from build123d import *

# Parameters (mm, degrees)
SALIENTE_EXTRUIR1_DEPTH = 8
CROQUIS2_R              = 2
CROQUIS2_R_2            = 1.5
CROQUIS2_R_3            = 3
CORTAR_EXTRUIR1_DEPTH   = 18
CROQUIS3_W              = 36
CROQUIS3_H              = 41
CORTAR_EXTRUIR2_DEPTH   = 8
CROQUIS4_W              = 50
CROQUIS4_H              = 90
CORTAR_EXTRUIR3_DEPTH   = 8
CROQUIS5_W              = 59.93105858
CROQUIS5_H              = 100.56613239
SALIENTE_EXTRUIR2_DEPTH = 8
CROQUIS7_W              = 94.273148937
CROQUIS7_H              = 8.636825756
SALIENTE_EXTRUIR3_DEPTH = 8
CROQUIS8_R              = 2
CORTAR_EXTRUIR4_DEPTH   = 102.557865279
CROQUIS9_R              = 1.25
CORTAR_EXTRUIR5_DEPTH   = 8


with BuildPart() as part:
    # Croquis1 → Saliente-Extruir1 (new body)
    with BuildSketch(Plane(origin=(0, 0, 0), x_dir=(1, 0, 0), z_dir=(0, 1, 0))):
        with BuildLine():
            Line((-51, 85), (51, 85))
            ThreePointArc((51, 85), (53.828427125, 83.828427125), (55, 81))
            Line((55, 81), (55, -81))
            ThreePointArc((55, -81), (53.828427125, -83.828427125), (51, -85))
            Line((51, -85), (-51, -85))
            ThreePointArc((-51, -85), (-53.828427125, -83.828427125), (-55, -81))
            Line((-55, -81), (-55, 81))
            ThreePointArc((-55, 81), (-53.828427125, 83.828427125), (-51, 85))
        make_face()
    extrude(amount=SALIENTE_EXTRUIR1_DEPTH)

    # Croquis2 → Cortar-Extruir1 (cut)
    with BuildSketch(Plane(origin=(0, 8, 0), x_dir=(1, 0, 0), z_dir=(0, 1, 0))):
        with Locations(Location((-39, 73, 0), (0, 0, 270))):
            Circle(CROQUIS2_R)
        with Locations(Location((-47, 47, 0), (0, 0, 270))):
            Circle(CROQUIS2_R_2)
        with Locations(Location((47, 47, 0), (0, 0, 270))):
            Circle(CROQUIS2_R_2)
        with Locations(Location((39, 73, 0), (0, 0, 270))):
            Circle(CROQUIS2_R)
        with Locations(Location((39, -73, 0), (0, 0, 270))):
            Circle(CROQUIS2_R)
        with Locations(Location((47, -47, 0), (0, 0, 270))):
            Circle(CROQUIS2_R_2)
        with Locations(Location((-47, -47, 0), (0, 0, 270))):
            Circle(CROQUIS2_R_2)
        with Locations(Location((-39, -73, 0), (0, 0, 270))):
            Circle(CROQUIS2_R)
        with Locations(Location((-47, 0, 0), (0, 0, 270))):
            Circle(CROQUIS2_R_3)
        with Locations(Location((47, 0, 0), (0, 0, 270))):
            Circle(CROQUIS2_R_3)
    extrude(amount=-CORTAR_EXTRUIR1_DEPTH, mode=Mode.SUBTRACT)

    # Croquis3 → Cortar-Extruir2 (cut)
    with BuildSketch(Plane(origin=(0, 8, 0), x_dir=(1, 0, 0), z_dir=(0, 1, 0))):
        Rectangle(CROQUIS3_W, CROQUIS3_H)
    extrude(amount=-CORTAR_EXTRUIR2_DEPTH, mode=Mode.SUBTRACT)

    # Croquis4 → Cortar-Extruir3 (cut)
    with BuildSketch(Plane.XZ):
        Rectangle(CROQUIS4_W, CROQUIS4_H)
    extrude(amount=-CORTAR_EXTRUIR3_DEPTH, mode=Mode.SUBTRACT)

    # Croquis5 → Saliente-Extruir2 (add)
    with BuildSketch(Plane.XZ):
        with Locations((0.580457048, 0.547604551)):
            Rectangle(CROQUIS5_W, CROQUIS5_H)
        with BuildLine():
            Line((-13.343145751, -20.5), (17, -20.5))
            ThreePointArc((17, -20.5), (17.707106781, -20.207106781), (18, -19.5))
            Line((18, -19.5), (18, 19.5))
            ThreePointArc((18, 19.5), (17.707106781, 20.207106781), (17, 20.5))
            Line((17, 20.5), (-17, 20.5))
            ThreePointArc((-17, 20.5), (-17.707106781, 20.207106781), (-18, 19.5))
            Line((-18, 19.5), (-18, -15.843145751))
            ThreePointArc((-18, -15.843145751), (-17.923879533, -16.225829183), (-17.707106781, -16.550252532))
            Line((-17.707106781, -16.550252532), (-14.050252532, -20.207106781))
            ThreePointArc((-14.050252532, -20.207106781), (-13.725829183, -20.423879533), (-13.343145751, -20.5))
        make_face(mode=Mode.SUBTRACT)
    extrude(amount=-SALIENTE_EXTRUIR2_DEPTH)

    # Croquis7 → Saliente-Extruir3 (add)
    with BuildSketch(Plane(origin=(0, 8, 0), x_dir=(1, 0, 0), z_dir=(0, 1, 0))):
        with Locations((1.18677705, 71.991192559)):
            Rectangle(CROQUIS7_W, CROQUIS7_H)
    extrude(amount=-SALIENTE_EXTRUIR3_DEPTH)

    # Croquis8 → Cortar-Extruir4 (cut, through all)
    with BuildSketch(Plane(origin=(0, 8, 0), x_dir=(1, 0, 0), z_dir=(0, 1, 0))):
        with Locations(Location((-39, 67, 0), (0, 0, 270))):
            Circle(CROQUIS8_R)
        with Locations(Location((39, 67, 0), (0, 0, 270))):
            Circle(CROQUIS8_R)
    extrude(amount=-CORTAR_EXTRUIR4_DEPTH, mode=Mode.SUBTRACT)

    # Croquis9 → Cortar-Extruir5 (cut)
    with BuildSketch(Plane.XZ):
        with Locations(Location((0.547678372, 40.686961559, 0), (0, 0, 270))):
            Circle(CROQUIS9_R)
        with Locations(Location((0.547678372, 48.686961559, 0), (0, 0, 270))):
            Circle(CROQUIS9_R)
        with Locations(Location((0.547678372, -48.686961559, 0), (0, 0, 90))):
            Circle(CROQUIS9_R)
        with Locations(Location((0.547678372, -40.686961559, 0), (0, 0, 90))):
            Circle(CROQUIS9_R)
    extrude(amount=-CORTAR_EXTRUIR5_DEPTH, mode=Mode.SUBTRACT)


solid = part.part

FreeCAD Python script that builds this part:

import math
import FreeCAD as App
import Part
import Sketcher
Q = App.Units.Quantity


def add_polygon(sketch, points):
    """Adds a closed chain of lines whose ends are joined by coincident constraints."""
    first, n = sketch.GeometryCount, len(points)
    for a, b in zip(points, points[1:] + points[:1]):
        sketch.addGeometry(Part.LineSegment(App.Vector(*a, 0), App.Vector(*b, 0)), False)
    for i in range(n):
        sketch.addConstraint(Sketcher.Constraint("Coincident", first + i, 2, first + (i + 1) % n, 1))

doc = App.newDocument("Part")
params = doc.addObject("Spreadsheet::Sheet", "Params")
for row, (alias, value) in enumerate([
    ("sketch1_radius", "4 mm"),
    ("sketch1_width", "102 mm"),
    ("sketch1_height", "162 mm"),
    ("pad1_length", "8 mm"),
    ("sketch2_diameter", "4 mm"),
    ("sketch2_diameter2", "3 mm"),
    ("sketch2_diameter3", "6 mm"),
    ("pocket1_length", "18 mm"),
    ("sketch3_width", "36 mm"),
    ("sketch3_height", "41 mm"),
    ("pocket2_length", "8 mm"),
    ("sketch4_width", "50 mm"),
    ("sketch4_height", "90 mm"),
    ("pocket3_length", "8 mm"),
    ("sketch5_radius", "1 mm"),
    ("sketch5_width", "34 mm"),
    ("sketch5_height", "39 mm"),
    ("pad2_length", "8 mm"),
    ("pad3_length", "8 mm"),
    ("sketch7_diameter", "4 mm"),
    ("sketch8_diameter", "2.5 mm"),
    ("pocket5_length", "8 mm"),
], start=1):
    params.set(f"A{row}", alias)
    params.set(f"B{row}", "=" + value)
    params.setAlias(f"B{row}", alias)

body = doc.addObject("PartDesign::Body", "Body")

sketch1 = doc.addObject("Sketcher::SketchObject", "Sketch")
body.addObject(sketch1)
sketch1.AttachmentSupport = (doc.XZ_Plane, [""])
sketch1.MapMode = "FlatFace"
sketch1.addGeometry(Part.LineSegment(App.Vector(51, -85, 0), App.Vector(-51, -85, 0)), False)
sketch1.addGeometry(Part.ArcOfCircle(Part.Circle(App.Vector(-51, -81, 0), App.Vector(0, 0, 1), 4), math.radians(180), math.radians(270)), False)
sketch1.addGeometry(Part.LineSegment(App.Vector(-55, -81, 0), App.Vector(-55, 81, 0)), False)
sketch1.addGeometry(Part.ArcOfCircle(Part.Circle(App.Vector(-51, 81, 0), App.Vector(0, 0, 1), 4), math.radians(90), math.radians(180)), False)
sketch1.addGeometry(Part.LineSegment(App.Vector(-51, 85, 0), App.Vector(51, 85, 0)), False)
sketch1.addGeometry(Part.ArcOfCircle(Part.Circle(App.Vector(51, 81, 0), App.Vector(0, 0, 1), 4), math.radians(0), math.radians(90)), False)
sketch1.addGeometry(Part.LineSegment(App.Vector(55, 81, 0), App.Vector(55, -81, 0)), False)
sketch1.addGeometry(Part.ArcOfCircle(Part.Circle(App.Vector(51, -81, 0), App.Vector(0, 0, 1), 4), math.radians(-90), math.radians(0)), False)
sketch1.addConstraint(Sketcher.Constraint("Tangent", 0, 2, 1, 2))
sketch1.addConstraint(Sketcher.Constraint("Tangent", 1, 1, 2, 1))
sketch1.addConstraint(Sketcher.Constraint("Tangent", 2, 2, 3, 2))
sketch1.addConstraint(Sketcher.Constraint("Tangent", 3, 1, 4, 1))
sketch1.addConstraint(Sketcher.Constraint("Tangent", 4, 2, 5, 2))
sketch1.addConstraint(Sketcher.Constraint("Tangent", 5, 1, 6, 1))
sketch1.addConstraint(Sketcher.Constraint("Tangent", 6, 2, 7, 2))
sketch1.addConstraint(Sketcher.Constraint("Tangent", 7, 1, 0, 1))
sketch1.addConstraint(Sketcher.Constraint("Horizontal", 0))
sketch1.addConstraint(Sketcher.Constraint("Vertical", 2))
sketch1.addConstraint(Sketcher.Constraint("Horizontal", 4))
sketch1.addConstraint(Sketcher.Constraint("Vertical", 6))
sketch1.addConstraint(Sketcher.Constraint("Equal", 1, 3))
sketch1.addConstraint(Sketcher.Constraint("Equal", 3, 5))
sketch1.addConstraint(Sketcher.Constraint("Equal", 5, 7))
sketch1.addConstraint(Sketcher.Constraint("Symmetric", 1, 3, 5, 3, -1, 1))
sketch1.addConstraint(Sketcher.Constraint("Radius", 1, 4.0))
sketch1.addConstraint(Sketcher.Constraint("DistanceX", 0, 2, 0, 1, 102.0))
sketch1.addConstraint(Sketcher.Constraint("DistanceY", 2, 1, 2, 2, 162.0))
sketch1.setExpression("Constraints[16]", "Params.sketch1_radius")
sketch1.setExpression("Constraints[17]", "Params.sketch1_width")
sketch1.setExpression("Constraints[18]", "Params.sketch1_height")
pad1 = doc.addObject("PartDesign::Pad", "Pad")
body.addObject(pad1)
pad1.Profile = sketch1
pad1.setExpression("Length", "Params.pad1_length")
pad1.Reversed = True

sketch2 = doc.addObject("Sketcher::SketchObject", "Sketch001")
body.addObject(sketch2)
sketch2.AttachmentSupport = (doc.XZ_Plane, [""])
sketch2.MapMode = "FlatFace"
sketch2.AttachmentOffset = App.Placement(App.Vector(0, 0, -8), App.Rotation())
sketch2.addGeometry(Part.Circle(App.Vector(-39, -73, 0), App.Vector(0, 0, 1), 2), False)
sketch2.addGeometry(Part.Circle(App.Vector(-47, -47, 0), App.Vector(0, 0, 1), 1.5), False)
sketch2.addGeometry(Part.Circle(App.Vector(47, -47, 0), App.Vector(0, 0, 1), 1.5), False)
sketch2.addGeometry(Part.Circle(App.Vector(39, -73, 0), App.Vector(0, 0, 1), 2), False)
sketch2.addGeometry(Part.Circle(App.Vector(39, 73, 0), App.Vector(0, 0, 1), 2), False)
sketch2.addGeometry(Part.Circle(App.Vector(47, 47, 0), App.Vector(0, 0, 1), 1.5), False)
sketch2.addGeometry(Part.Circle(App.Vector(-47, 47, 0), App.Vector(0, 0, 1), 1.5), False)
sketch2.addGeometry(Part.Circle(App.Vector(-39, 73, 0), App.Vector(0, 0, 1), 2), False)
sketch2.addGeometry(Part.Circle(App.Vector(-47, 0, 0), App.Vector(0, 0, 1), 3), False)
sketch2.addGeometry(Part.Circle(App.Vector(47, 0, 0), App.Vector(0, 0, 1), 3), False)
sketch2.addConstraint(Sketcher.Constraint("Equal", 1, 2))
sketch2.addConstraint(Sketcher.Constraint("Equal", 0, 3))
sketch2.addConstraint(Sketcher.Constraint("Equal", 3, 4))
sketch2.addConstraint(Sketcher.Constraint("Equal", 2, 5))
sketch2.addConstraint(Sketcher.Constraint("Equal", 5, 6))
sketch2.addConstraint(Sketcher.Constraint("Equal", 4, 7))
sketch2.addConstraint(Sketcher.Constraint("Equal", 8, 9))
sketch2.addConstraint(Sketcher.Constraint("Symmetric", 0, 3, 4, 3, -1, 1))
sketch2.addConstraint(Sketcher.Constraint("Symmetric", 1, 3, 5, 3, -1, 1))
sketch2.addConstraint(Sketcher.Constraint("Symmetric", 2, 3, 6, 3, -1, 1))
sketch2.addConstraint(Sketcher.Constraint("Symmetric", 3, 3, 7, 3, -1, 1))
sketch2.addConstraint(Sketcher.Constraint("Symmetric", 8, 3, 9, 3, -1, 1))
sketch2.addConstraint(Sketcher.Constraint("Symmetric", 1, 3, 2, 3, -2))
sketch2.addConstraint(Sketcher.Constraint("Symmetric", 0, 3, 3, 3, -2))
sketch2.addConstraint(Sketcher.Constraint("PointOnObject", 8, 3, -1))
sketch2.addConstraint(Sketcher.Constraint("Vertical", 6, 3, 8, 3))
sketch2.addConstraint(Sketcher.Constraint("Diameter", 0, 4.0))
sketch2.addConstraint(Sketcher.Constraint("Diameter", 1, 3.0))
sketch2.addConstraint(Sketcher.Constraint("Diameter", 8, 6.0))
sketch2.addConstraint(Sketcher.Constraint("DistanceX", 0, 3, -1, 1, 39.0))
sketch2.addConstraint(Sketcher.Constraint("DistanceY", 0, 3, -1, 1, 73.0))
sketch2.addConstraint(Sketcher.Constraint("DistanceX", 1, 3, -1, 1, 47.0))
sketch2.addConstraint(Sketcher.Constraint("DistanceY", 1, 3, -1, 1, 47.0))
sketch2.setExpression("Constraints[16]", "Params.sketch2_diameter")
sketch2.setExpression("Constraints[17]", "Params.sketch2_diameter2")
sketch2.setExpression("Constraints[18]", "Params.sketch2_diameter3")
pocket1 = doc.addObject("PartDesign::Pocket", "Pocket")
body.addObject(pocket1)
pocket1.Profile = sketch2
pocket1.setExpression("Length", "Params.pocket1_length")
pocket1.Reversed = True

sketch3 = doc.addObject("Sketcher::SketchObject", "Sketch002")
body.addObject(sketch3)
sketch3.AttachmentSupport = (doc.XZ_Plane, [""])
sketch3.MapMode = "FlatFace"
sketch3.AttachmentOffset = App.Placement(App.Vector(0, 0, -8), App.Rotation())
add_polygon(sketch3, [(-18, -20.5), (-18, 20.5), (18, 20.5), (18, -20.5)])
sketch3.addConstraint(Sketcher.Constraint("Vertical", 0))
sketch3.addConstraint(Sketcher.Constraint("Horizontal", 1))
sketch3.addConstraint(Sketcher.Constraint("Vertical", 2))
sketch3.addConstraint(Sketcher.Constraint("Horizontal", 3))
sketch3.addConstraint(Sketcher.Constraint("Symmetric", 0, 2, 2, 2, -1, 1))
sketch3.addConstraint(Sketcher.Constraint("DistanceX", 1, 1, 1, 2, 36.0))
sketch3.addConstraint(Sketcher.Constraint("DistanceY", 0, 1, 0, 2, 41.0))
sketch3.setExpression("Constraints[9]", "Params.sketch3_width")
sketch3.setExpression("Constraints[10]", "Params.sketch3_height")
pocket2 = doc.addObject("PartDesign::Pocket", "Pocket001")
body.addObject(pocket2)
pocket2.Profile = sketch3
pocket2.setExpression("Length", "Params.pocket2_length")
pocket2.Reversed = True

sketch4 = doc.addObject("Sketcher::SketchObject", "Sketch003")
body.addObject(sketch4)
sketch4.AttachmentSupport = (doc.XZ_Plane, [""])
sketch4.MapMode = "FlatFace"
add_polygon(sketch4, [(-25, 45), (-25, -45), (25, -45), (25, 45)])
sketch4.addConstraint(Sketcher.Constraint("Vertical", 0))
sketch4.addConstraint(Sketcher.Constraint("Horizontal", 1))
sketch4.addConstraint(Sketcher.Constraint("Vertical", 2))
sketch4.addConstraint(Sketcher.Constraint("Horizontal", 3))
sketch4.addConstraint(Sketcher.Constraint("Symmetric", 0, 2, 2, 2, -1, 1))
sketch4.addConstraint(Sketcher.Constraint("DistanceX", 1, 1, 1, 2, 50.0))
sketch4.addConstraint(Sketcher.Constraint("DistanceY", 0, 2, 0, 1, 90.0))
sketch4.setExpression("Constraints[9]", "Params.sketch4_width")
sketch4.setExpression("Constraints[10]", "Params.sketch4_height")
pocket3 = doc.addObject("PartDesign::Pocket", "Pocket002")
body.addObject(pocket3)
pocket3.Profile = sketch4
pocket3.setExpression("Length", "Params.pocket3_length")

sketch5 = doc.addObject("Sketcher::SketchObject", "Sketch004")
body.addObject(sketch5)
sketch5.AttachmentSupport = (doc.XZ_Plane, [""])
sketch5.MapMode = "FlatFace"
add_polygon(sketch5, [(-29.385072, 50.830671), (-29.385072, -49.735462), (30.545986, -49.735462), (30.545986, 50.830671)])
sketch5.addGeometry(Part.LineSegment(App.Vector(17, -20.5, 0), App.Vector(-13.343146, -20.5, 0)), False)
sketch5.addGeometry(Part.ArcOfCircle(Part.Circle(App.Vector(-13.343146, -19.5, 0), App.Vector(0, 0, 1), 1), math.radians(-135), math.radians(-90)), False)
sketch5.addGeometry(Part.LineSegment(App.Vector(-14.050253, -20.207107, 0), App.Vector(-17.707107, -16.550253, 0)), False)
sketch5.addGeometry(Part.ArcOfCircle(Part.Circle(App.Vector(-17, -15.843146, 0), App.Vector(0, 0, 1), 1), math.radians(180), math.radians(225)), False)
sketch5.addGeometry(Part.LineSegment(App.Vector(-18, -15.843146, 0), App.Vector(-18, 19.5, 0)), False)
sketch5.addGeometry(Part.ArcOfCircle(Part.Circle(App.Vector(-17, 19.5, 0), App.Vector(0, 0, 1), 1), math.radians(90), math.radians(180)), False)
sketch5.addGeometry(Part.LineSegment(App.Vector(-17, 20.5, 0), App.Vector(17, 20.5, 0)), False)
sketch5.addGeometry(Part.ArcOfCircle(Part.Circle(App.Vector(17, 19.5, 0), App.Vector(0, 0, 1), 1), math.radians(0), math.radians(90)), False)
sketch5.addGeometry(Part.LineSegment(App.Vector(18, 19.5, 0), App.Vector(18, -19.5, 0)), False)
sketch5.addGeometry(Part.ArcOfCircle(Part.Circle(App.Vector(17, -19.5, 0), App.Vector(0, 0, 1), 1), math.radians(-90), math.radians(0)), False)
sketch5.addConstraint(Sketcher.Constraint("Tangent", 4, 2, 5, 2))
sketch5.addConstraint(Sketcher.Constraint("Tangent", 5, 1, 6, 1))
sketch5.addConstraint(Sketcher.Constraint("Tangent", 6, 2, 7, 2))
sketch5.addConstraint(Sketcher.Constraint("Tangent", 7, 1, 8, 1))
sketch5.addConstraint(Sketcher.Constraint("Tangent", 8, 2, 9, 2))
sketch5.addConstraint(Sketcher.Constraint("Tangent", 9, 1, 10, 1))
sketch5.addConstraint(Sketcher.Constraint("Tangent", 10, 2, 11, 2))
sketch5.addConstraint(Sketcher.Constraint("Tangent", 11, 1, 12, 1))
sketch5.addConstraint(Sketcher.Constraint("Tangent", 12, 2, 13, 2))
sketch5.addConstraint(Sketcher.Constraint("Tangent", 13, 1, 4, 1))
sketch5.addConstraint(Sketcher.Constraint("Vertical", 0))
sketch5.addConstraint(Sketcher.Constraint("Horizontal", 1))
sketch5.addConstraint(Sketcher.Constraint("Vertical", 2))
sketch5.addConstraint(Sketcher.Constraint("Horizontal", 3))
sketch5.addConstraint(Sketcher.Constraint("Horizontal", 4))
sketch5.addConstraint(Sketcher.Constraint("Vertical", 8))
sketch5.addConstraint(Sketcher.Constraint("Horizontal", 10))
sketch5.addConstraint(Sketcher.Constraint("Vertical", 12))
sketch5.addConstraint(Sketcher.Constraint("Equal", 5, 7))
sketch5.addConstraint(Sketcher.Constraint("Equal", 7, 9))
sketch5.addConstraint(Sketcher.Constraint("Equal", 9, 11))
sketch5.addConstraint(Sketcher.Constraint("Equal", 11, 13))
sketch5.addConstraint(Sketcher.Constraint("Symmetric", 9, 3, 13, 3, -1, 1))
sketch5.addConstraint(Sketcher.Constraint("Radius", 5, 1.0))
sketch5.addConstraint(Sketcher.Constraint("DistanceX", 10, 1, 10, 2, 34.0))
sketch5.addConstraint(Sketcher.Constraint("DistanceY", 12, 2, 12, 1, 39.0))
sketch5.addConstraint(Sketcher.Constraint("Angle", 6, Q("135 deg")))
sketch5.addConstraint(Sketcher.Constraint("DistanceX", 1, 1, 1, 2, 59.931059))
sketch5.addConstraint(Sketcher.Constraint("DistanceX", 4, 2, 4, 1, 30.343146))
sketch5.addConstraint(Sketcher.Constraint("DistanceY", 0, 2, 0, 1, 100.566132))
sketch5.addConstraint(Sketcher.Constraint("DistanceY", 0, 2, -1, 1, 49.735462))
sketch5.addConstraint(Sketcher.Constraint("DistanceX", 0, 2, 5, 1, 15.33482))
sketch5.setExpression("Constraints[27]", "Params.sketch5_radius")
sketch5.setExpression("Constraints[28]", "Params.sketch5_width")
sketch5.setExpression("Constraints[29]", "Params.sketch5_height")
pad2 = doc.addObject("PartDesign::Pad", "Pad001")
body.addObject(pad2)
pad2.Profile = sketch5
pad2.setExpression("Length", "Params.pad2_length")
pad2.Reversed = True

sketch6 = doc.addObject("Sketcher::SketchObject", "Sketch005")
body.addObject(sketch6)
sketch6.AttachmentSupport = (doc.XZ_Plane, [""])
sketch6.MapMode = "FlatFace"
sketch6.AttachmentOffset = App.Placement(App.Vector(0, 0, -8), App.Rotation())
add_polygon(sketch6, [(-45.949797, -76.309605), (-45.949797, -67.67278), (48.323352, -67.67278), (48.323352, -76.309605)])
sketch6.addConstraint(Sketcher.Constraint("Vertical", 0))
sketch6.addConstraint(Sketcher.Constraint("Horizontal", 1))
sketch6.addConstraint(Sketcher.Constraint("Vertical", 2))
sketch6.addConstraint(Sketcher.Constraint("Horizontal", 3))
sketch6.addConstraint(Sketcher.Constraint("DistanceX", 1, 1, 1, 2, 94.273149))
sketch6.addConstraint(Sketcher.Constraint("DistanceY", 0, 1, 0, 2, 8.636826))
sketch6.addConstraint(Sketcher.Constraint("DistanceY", 0, 2, -1, 1, 67.67278))
sketch6.addConstraint(Sketcher.Constraint("DistanceX", -1, 1, 1, 2, 48.323352))
pad3 = doc.addObject("PartDesign::Pad", "Pad002")
body.addObject(pad3)
pad3.Profile = sketch6
pad3.setExpression("Length", "Params.pad3_length")

sketch7 = doc.addObject("Sketcher::SketchObject", "Sketch006")
body.addObject(sketch7)
sketch7.AttachmentSupport = (doc.XZ_Plane, [""])
sketch7.MapMode = "FlatFace"
sketch7.AttachmentOffset = App.Placement(App.Vector(0, 0, -8), App.Rotation())
sketch7.addGeometry(Part.Circle(App.Vector(-39, -67, 0), App.Vector(0, 0, 1), 2), False)
sketch7.addGeometry(Part.Circle(App.Vector(39, -67, 0), App.Vector(0, 0, 1), 2), False)
sketch7.addConstraint(Sketcher.Constraint("Equal", 0, 1))
sketch7.addConstraint(Sketcher.Constraint("Symmetric", 0, 3, 1, 3, -2))
sketch7.addConstraint(Sketcher.Constraint("Diameter", 0, 4.0))
sketch7.addConstraint(Sketcher.Constraint("DistanceX", 0, 3, -1, 1, 39.0))
sketch7.addConstraint(Sketcher.Constraint("DistanceY", 0, 3, -1, 1, 67.0))
sketch7.setExpression("Constraints[2]", "Params.sketch7_diameter")
pocket4 = doc.addObject("PartDesign::Pocket", "Pocket003")
body.addObject(pocket4)
pocket4.Profile = sketch7
pocket4.Type = "ThroughAll"
pocket4.Reversed = True

sketch8 = doc.addObject("Sketcher::SketchObject", "Sketch007")
body.addObject(sketch8)
sketch8.AttachmentSupport = (doc.XZ_Plane, [""])
sketch8.MapMode = "FlatFace"
sketch8.addGeometry(Part.Circle(App.Vector(0.547678, 40.686962, 0), App.Vector(0, 0, 1), 1.25), False)
sketch8.addGeometry(Part.Circle(App.Vector(0.547678, 48.686962, 0), App.Vector(0, 0, 1), 1.25), False)
sketch8.addGeometry(Part.Circle(App.Vector(0.547678, -48.686962, 0), App.Vector(0, 0, 1), 1.25), False)
sketch8.addGeometry(Part.Circle(App.Vector(0.547678, -40.686962, 0), App.Vector(0, 0, 1), 1.25), False)
sketch8.addConstraint(Sketcher.Constraint("Equal", 0, 1))
sketch8.addConstraint(Sketcher.Constraint("Equal", 1, 2))
sketch8.addConstraint(Sketcher.Constraint("Equal", 2, 3))
sketch8.addConstraint(Sketcher.Constraint("Symmetric", 1, 3, 2, 3, -1))
sketch8.addConstraint(Sketcher.Constraint("Symmetric", 0, 3, 3, 3, -1))
sketch8.addConstraint(Sketcher.Constraint("Vertical", 0, 3, 1, 3))
sketch8.addConstraint(Sketcher.Constraint("Diameter", 0, 2.5))
sketch8.addConstraint(Sketcher.Constraint("DistanceY", 0, 3, 1, 3, 8.0))
sketch8.addConstraint(Sketcher.Constraint("DistanceX", -1, 1, 0, 3, 0.547678))
sketch8.addConstraint(Sketcher.Constraint("DistanceY", -1, 1, 0, 3, 40.686962))
sketch8.setExpression("Constraints[6]", "Params.sketch8_diameter")
pocket5 = doc.addObject("PartDesign::Pocket", "Pocket004")
body.addObject(pocket5)
pocket5.Profile = sketch8
pocket5.setExpression("Length", "Params.pocket5_length")

doc.recompute()
